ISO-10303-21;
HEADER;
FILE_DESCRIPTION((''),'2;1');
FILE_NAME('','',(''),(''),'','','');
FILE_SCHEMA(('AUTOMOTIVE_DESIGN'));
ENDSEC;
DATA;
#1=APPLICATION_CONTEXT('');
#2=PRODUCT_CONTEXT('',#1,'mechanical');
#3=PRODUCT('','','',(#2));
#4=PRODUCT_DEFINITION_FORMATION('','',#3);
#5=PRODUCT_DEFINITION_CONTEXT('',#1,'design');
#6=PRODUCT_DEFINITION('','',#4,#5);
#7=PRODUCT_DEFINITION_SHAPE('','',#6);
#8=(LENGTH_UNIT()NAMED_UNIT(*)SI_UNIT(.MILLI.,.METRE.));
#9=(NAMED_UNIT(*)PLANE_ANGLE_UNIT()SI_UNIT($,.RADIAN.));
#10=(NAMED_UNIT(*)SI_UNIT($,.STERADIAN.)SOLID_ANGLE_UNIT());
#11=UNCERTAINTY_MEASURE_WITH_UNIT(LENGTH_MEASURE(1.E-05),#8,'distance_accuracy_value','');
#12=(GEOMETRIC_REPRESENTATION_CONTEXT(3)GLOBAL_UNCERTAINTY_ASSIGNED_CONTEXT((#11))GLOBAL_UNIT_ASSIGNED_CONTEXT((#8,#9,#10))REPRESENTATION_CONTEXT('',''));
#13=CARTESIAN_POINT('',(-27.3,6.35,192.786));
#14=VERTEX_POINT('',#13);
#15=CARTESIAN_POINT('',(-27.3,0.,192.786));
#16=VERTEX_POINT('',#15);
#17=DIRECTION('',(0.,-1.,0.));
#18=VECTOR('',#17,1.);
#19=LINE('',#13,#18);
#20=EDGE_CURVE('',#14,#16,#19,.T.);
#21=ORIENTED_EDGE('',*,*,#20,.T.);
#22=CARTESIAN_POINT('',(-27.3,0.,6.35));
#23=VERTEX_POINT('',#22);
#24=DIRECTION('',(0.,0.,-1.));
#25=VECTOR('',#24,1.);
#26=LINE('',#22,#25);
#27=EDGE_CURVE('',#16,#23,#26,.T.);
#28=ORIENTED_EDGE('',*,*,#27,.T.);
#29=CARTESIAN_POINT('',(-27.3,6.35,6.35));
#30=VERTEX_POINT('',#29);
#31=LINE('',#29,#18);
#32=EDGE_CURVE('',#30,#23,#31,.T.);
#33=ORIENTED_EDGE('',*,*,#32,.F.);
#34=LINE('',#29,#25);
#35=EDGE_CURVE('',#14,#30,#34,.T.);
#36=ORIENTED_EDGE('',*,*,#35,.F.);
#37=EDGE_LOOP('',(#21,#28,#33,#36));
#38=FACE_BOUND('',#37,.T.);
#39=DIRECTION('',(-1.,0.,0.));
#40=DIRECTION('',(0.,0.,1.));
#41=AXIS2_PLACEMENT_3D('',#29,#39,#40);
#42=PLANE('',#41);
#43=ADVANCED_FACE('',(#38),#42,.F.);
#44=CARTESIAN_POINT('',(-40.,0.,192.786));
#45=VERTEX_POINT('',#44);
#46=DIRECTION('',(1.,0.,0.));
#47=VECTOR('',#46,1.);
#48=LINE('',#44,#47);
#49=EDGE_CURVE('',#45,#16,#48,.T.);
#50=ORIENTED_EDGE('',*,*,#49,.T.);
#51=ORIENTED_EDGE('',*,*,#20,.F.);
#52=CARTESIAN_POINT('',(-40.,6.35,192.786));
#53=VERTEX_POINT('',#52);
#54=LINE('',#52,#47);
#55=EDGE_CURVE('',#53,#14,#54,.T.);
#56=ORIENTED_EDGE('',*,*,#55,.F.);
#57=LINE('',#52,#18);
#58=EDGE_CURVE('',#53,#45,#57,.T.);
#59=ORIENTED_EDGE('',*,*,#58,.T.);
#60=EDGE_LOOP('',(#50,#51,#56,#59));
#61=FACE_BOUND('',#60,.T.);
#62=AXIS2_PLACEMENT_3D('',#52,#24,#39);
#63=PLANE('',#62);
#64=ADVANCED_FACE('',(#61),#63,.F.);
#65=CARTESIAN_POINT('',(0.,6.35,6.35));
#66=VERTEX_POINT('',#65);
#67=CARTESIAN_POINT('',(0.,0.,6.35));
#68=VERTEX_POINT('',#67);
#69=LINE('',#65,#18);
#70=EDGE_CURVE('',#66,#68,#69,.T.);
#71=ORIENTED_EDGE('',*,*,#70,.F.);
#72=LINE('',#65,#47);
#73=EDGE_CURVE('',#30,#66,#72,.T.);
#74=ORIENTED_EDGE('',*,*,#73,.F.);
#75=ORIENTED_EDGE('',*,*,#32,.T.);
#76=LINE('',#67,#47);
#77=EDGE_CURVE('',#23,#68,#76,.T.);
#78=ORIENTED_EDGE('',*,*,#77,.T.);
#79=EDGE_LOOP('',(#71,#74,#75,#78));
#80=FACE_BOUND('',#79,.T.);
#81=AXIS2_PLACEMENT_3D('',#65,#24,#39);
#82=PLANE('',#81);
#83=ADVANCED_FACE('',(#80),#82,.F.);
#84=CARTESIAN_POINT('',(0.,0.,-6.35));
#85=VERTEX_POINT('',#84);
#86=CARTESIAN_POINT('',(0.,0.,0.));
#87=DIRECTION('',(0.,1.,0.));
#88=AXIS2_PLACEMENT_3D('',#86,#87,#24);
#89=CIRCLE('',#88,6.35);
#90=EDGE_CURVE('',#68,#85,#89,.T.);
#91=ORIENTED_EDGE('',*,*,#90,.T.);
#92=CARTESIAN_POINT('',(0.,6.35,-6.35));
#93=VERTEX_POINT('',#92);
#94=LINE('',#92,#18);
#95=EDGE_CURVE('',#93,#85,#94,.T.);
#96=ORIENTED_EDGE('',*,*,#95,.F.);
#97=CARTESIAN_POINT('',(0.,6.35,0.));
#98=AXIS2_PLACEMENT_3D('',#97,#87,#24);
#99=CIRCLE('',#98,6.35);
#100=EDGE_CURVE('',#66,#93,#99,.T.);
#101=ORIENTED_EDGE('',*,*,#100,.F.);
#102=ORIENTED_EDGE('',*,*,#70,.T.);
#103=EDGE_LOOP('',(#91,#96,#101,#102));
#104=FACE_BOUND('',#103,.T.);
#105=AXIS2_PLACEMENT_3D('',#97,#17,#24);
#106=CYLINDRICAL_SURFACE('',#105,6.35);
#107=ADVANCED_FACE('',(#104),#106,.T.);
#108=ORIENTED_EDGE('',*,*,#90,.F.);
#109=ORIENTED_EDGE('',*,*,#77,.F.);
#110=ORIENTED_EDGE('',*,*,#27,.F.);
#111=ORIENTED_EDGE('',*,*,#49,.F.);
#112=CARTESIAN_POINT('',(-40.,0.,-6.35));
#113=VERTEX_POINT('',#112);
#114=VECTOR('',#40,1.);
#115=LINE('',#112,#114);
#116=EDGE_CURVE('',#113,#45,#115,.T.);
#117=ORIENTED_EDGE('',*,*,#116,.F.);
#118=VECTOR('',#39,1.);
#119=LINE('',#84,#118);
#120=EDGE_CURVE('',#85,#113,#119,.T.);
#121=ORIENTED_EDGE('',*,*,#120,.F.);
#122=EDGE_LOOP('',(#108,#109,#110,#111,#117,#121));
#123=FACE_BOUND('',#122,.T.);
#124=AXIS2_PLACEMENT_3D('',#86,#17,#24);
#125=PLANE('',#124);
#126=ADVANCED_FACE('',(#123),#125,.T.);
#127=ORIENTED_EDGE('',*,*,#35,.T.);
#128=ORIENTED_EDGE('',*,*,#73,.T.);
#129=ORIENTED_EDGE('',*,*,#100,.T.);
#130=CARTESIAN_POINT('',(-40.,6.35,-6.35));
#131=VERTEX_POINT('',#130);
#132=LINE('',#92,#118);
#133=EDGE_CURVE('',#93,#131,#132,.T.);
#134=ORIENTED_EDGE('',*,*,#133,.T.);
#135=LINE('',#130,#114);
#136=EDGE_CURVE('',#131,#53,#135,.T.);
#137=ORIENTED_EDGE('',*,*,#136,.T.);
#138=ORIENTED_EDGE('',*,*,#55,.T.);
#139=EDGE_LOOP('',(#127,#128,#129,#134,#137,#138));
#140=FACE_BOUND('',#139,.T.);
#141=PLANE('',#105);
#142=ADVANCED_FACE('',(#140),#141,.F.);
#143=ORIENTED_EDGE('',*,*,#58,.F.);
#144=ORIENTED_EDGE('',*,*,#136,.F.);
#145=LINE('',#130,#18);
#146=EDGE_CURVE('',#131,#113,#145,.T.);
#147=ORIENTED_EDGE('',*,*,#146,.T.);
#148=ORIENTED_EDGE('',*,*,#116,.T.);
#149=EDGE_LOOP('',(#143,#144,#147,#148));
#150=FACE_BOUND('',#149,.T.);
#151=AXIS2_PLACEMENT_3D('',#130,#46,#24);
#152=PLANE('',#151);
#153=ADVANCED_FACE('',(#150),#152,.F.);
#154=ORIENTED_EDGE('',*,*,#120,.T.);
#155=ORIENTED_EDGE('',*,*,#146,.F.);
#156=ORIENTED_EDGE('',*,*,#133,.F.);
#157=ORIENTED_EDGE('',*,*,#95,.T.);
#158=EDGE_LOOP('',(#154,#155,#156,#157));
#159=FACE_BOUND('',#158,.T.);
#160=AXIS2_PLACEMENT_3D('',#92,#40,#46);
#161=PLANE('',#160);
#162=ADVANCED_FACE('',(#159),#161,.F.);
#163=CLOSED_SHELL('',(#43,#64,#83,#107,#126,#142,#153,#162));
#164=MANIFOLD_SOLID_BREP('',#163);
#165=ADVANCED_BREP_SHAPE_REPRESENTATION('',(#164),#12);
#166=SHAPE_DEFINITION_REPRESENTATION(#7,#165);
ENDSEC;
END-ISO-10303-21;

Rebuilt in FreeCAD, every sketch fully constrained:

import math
import FreeCAD as App
import Part
import Sketcher
from FreeCAD import Vector
Q = App.Units.Quantity

doc = App.newDocument("Part")
body = doc.addObject("PartDesign::Body", "Body")

# Sketch on XZ plane
sketch1 = body.newObject("Sketcher::SketchObject", "Sketch")
sketch1.AttachmentSupport = (doc.getObject("XZ_Plane"), [""])
sketch1.MapMode = "FlatFace"
sketch1.addGeometry([
    Part.LineSegment(Vector(0, -6.35, 0), Vector(-40, -6.35, 0)),  # 0
    Part.LineSegment(Vector(-40, -6.35, 0), Vector(-40, 192.786, 0)),  # 1
    Part.LineSegment(Vector(-40, 192.786, 0), Vector(-27.3, 192.786, 0)),  # 2
    Part.LineSegment(Vector(-27.3, 192.786, 0), Vector(-27.3, 6.35, 0)),  # 3
    Part.LineSegment(Vector(-27.3, 6.35, 0), Vector(0, 6.35, 0)),  # 4
    Part.ArcOfCircle(Part.Circle(Vector(0, 0, 0), Vector(0, 0, 1), 6.35), math.radians(-90), math.radians(90)),  # 5
], False)
sketch1.addConstraint([
    Sketcher.Constraint("Coincident", 0, 2, 1, 1),
    Sketcher.Constraint("Coincident", 1, 2, 2, 1),
    Sketcher.Constraint("Coincident", 2, 2, 3, 1),
    Sketcher.Constraint("Coincident", 3, 2, 4, 1),
    Sketcher.Constraint("Tangent", 4, 2, 5, 2),
    Sketcher.Constraint("Tangent", 5, 1, 0, 1),
    Sketcher.Constraint("Horizontal", 0),
    Sketcher.Constraint("Vertical", 1),
    Sketcher.Constraint("Horizontal", 2),
    Sketcher.Constraint("Vertical", 3),
    Sketcher.Constraint("Horizontal", 4),
    Sketcher.Constraint("Coincident", 5, 3, -1, 1),
    Sketcher.Constraint("Radius", 5, Q("0.25 in")),
    Sketcher.Constraint("DistanceX", 2, 1, 2, 2, Q("0.5 in")),
    Sketcher.Constraint("DistanceY", 1, 1, 1, 2, Q("7.84 in")),
    Sketcher.Constraint("DistanceX", 0, 2, 0, 1, 40.0),
])
pad1 = body.newObject("PartDesign::Pad", "Pad")
pad1.Profile = sketch1
pad1.Length = Q("0.25 in")
pad1.Reversed = True

doc.recompute()
